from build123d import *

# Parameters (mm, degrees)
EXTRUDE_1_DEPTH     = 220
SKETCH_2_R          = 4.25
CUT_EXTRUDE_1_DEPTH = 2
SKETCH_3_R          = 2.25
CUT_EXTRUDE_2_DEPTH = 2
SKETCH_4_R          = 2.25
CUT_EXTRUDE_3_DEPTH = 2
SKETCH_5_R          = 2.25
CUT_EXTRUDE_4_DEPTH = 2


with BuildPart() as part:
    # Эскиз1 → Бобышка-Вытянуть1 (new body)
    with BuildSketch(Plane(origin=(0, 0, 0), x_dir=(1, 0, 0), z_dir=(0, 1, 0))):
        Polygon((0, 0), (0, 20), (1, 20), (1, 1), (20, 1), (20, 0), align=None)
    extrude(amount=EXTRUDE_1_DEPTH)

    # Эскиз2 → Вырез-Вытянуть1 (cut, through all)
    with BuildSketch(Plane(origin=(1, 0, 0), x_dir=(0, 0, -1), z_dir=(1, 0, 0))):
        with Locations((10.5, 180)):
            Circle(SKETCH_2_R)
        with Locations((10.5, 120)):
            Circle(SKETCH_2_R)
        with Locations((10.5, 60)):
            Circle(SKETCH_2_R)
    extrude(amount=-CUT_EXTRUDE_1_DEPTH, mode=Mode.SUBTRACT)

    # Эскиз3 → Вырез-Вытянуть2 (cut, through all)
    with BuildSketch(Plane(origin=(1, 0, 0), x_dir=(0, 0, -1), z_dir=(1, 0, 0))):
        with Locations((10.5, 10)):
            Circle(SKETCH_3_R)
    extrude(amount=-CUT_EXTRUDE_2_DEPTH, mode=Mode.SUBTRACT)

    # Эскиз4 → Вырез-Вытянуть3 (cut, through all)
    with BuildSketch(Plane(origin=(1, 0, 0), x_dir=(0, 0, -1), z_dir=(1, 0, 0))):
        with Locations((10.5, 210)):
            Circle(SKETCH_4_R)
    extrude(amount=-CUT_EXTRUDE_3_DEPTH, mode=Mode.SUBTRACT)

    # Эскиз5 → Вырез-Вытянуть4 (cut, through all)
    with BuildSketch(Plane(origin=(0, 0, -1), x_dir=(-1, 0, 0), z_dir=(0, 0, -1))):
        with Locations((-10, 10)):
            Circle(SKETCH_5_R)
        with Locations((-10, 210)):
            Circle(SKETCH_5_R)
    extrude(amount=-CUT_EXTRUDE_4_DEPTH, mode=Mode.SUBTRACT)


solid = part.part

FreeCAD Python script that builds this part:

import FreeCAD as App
import Part
import Sketcher
Q = App.Units.Quantity


def add_polygon(sketch, points):
    """Adds a closed chain of lines whose ends are joined by coincident constraints."""
    first, n = sketch.GeometryCount, len(points)
    for a, b in zip(points, points[1:] + points[:1]):
        sketch.addGeometry(Part.LineSegment(App.Vector(*a, 0), App.Vector(*b, 0)), False)
    for i in range(n):
        sketch.addConstraint(Sketcher.Constraint("Coincident", first + i, 2, first + (i + 1) % n, 1))

doc = App.newDocument("Part")
body = doc.addObject("PartDesign::Body", "Body")

# Sketch on XZ plane
sketch1 = body.newObject("Sketcher::SketchObject", "Sketch")
sketch1.AttachmentSupport = (doc.getObject("XZ_Plane"), [""])
sketch1.MapMode = "FlatFace"
add_polygon(sketch1, [(0, -20), (0, 0), (20, 0), (20, -1), (1, -1), (1, -20)])  # lines 0-5
sketch1.addConstraint([
    Sketcher.Constraint("Vertical", 0),
    Sketcher.Constraint("Horizontal", 1),
    Sketcher.Constraint("Vertical", 2),
    Sketcher.Constraint("Horizontal", 3),
    Sketcher.Constraint("Vertical", 4),
    Sketcher.Constraint("Horizontal", 5),
    Sketcher.Constraint("Coincident", 0, 2, -1, 1),
    Sketcher.Constraint("Equal", 1, 0),
    Sketcher.Constraint("Equal", 5, 2),
    Sketcher.Constraint("DistanceX", 1, 1, 1, 2, Q("20 mm")),
    Sketcher.Constraint("DistanceX", 3, 2, 3, 1, Q("19 mm")),
])
pad1 = body.newObject("PartDesign::Pad", "Pad")
pad1.Profile = sketch1
pad1.Length = 220
pad1.Reversed = True

# Sketch on YZ plane
sketch2 = body.newObject("Sketcher::SketchObject", "Sketch001")
sketch2.AttachmentSupport = (doc.getObject("YZ_Plane"), [""])
sketch2.MapMode = "FlatFace"
sketch2.AttachmentOffset = App.Placement(App.Vector(0, 0, 1), App.Rotation())
sketch2.addGeometry([
    Part.Circle(App.Vector(180, -10.5, 0), App.Vector(0, 0, 1), 4.2),
    Part.Circle(App.Vector(120, -10.5, 0), App.Vector(0, 0, 1), 4.2),
    Part.Circle(App.Vector(60, -10.5, 0), App.Vector(0, 0, 1), 4.2),
], False)
sketch2.addConstraint([
    Sketcher.Constraint("Equal", 0, 1),
    Sketcher.Constraint("Equal", 1, 2),
    Sketcher.Constraint("Horizontal", 0, 3, 1, 3),
    Sketcher.Constraint("Horizontal", 1, 3, 2, 3),
    Sketcher.Constraint("Diameter", 0, Q("8.5 mm")),
    Sketcher.Constraint("DistanceX", -1, 1, 0, 3, Q("180 mm")),
    Sketcher.Constraint("DistanceX", -1, 1, 1, 3, Q("120 mm")),
    Sketcher.Constraint("DistanceX", -1, 1, 2, 3, Q("60 mm")),
    Sketcher.Constraint("DistanceY", 0, 3, -1, 1, Q("10.5 mm")),
])
pocket1 = body.newObject("PartDesign::Pocket", "Pocket")
pocket1.Profile = sketch2
pocket1.Type = "ThroughAll"

# Sketch on YZ plane
sketch3 = body.newObject("Sketcher::SketchObject", "Sketch002")
sketch3.AttachmentSupport = (doc.getObject("YZ_Plane"), [""])
sketch3.MapMode = "FlatFace"
sketch3.AttachmentOffset = App.Placement(App.Vector(0, 0, 1), App.Rotation())
sketch3.addGeometry(Part.Circle(App.Vector(10, -10.5, 0), App.Vector(0, 0, 1), 2.2), False)
sketch3.addConstraint([
    Sketcher.Constraint("Diameter", 0, Q("4.5 mm")),
    Sketcher.Constraint("DistanceX", -1, 1, 0, 3, Q("10 mm")),
    Sketcher.Constraint("DistanceY", 0, 3, -1, 1, Q("10.5 mm")),
])
pocket2 = body.newObject("PartDesign::Pocket", "Pocket001")
pocket2.Profile = sketch3
pocket2.Type = "ThroughAll"

# Sketch on YZ plane
sketch4 = body.newObject("Sketcher::SketchObject", "Sketch003")
sketch4.AttachmentSupport = (doc.getObject("YZ_Plane"), [""])
sketch4.MapMode = "FlatFace"
sketch4.AttachmentOffset = App.Placement(App.Vector(0, 0, 1), App.Rotation())
sketch4.addGeometry(Part.Circle(App.Vector(210, -10.5, 0), App.Vector(0, 0, 1), 2.2), False)
sketch4.addConstraint([
    Sketcher.Constraint("Diameter", 0, Q("4.5 mm")),
    Sketcher.Constraint("DistanceX", -1, 1, 0, 3, Q("210 mm")),
    Sketcher.Constraint("DistanceY", 0, 3, -1, 1, Q("10.5 mm")),
])
pocket3 = body.newObject("PartDesign::Pocket", "Pocket002")
pocket3.Profile = sketch4
pocket3.Type = "ThroughAll"

# Sketch on XY plane
sketch5 = body.newObject("Sketcher::SketchObject", "Sketch004")
sketch5.AttachmentSupport = (doc.getObject("XY_Plane"), [""])
sketch5.MapMode = "FlatFace"
sketch5.AttachmentOffset = App.Placement(App.Vector(0, 0, -1), App.Rotation())
sketch5.addGeometry([
    Part.Circle(App.Vector(10, 10, 0), App.Vector(0, 0, 1), 2.2),
    Part.Circle(App.Vector(10, 210, 0), App.Vector(0, 0, 1), 2.2),
], False)
sketch5.addConstraint([
    Sketcher.Constraint("Equal", 0, 1),
    Sketcher.Constraint("Vertical", 0, 3, 1, 3),
    Sketcher.Constraint("Diameter", 0, Q("4.5 mm")),
    Sketcher.Constraint("DistanceX", -1, 1, 0, 3, Q("10 mm")),
    Sketcher.Constraint("DistanceY", -1, 1, 0, 3, Q("10 mm")),
    Sketcher.Constraint("DistanceY", -1, 1, 1, 3, Q("210 mm")),
])
pocket4 = body.newObject("PartDesign::Pocket", "Pocket003")
pocket4.Profile = sketch5
pocket4.Type = "ThroughAll"
pocket4.Reversed = True

doc.recompute()
